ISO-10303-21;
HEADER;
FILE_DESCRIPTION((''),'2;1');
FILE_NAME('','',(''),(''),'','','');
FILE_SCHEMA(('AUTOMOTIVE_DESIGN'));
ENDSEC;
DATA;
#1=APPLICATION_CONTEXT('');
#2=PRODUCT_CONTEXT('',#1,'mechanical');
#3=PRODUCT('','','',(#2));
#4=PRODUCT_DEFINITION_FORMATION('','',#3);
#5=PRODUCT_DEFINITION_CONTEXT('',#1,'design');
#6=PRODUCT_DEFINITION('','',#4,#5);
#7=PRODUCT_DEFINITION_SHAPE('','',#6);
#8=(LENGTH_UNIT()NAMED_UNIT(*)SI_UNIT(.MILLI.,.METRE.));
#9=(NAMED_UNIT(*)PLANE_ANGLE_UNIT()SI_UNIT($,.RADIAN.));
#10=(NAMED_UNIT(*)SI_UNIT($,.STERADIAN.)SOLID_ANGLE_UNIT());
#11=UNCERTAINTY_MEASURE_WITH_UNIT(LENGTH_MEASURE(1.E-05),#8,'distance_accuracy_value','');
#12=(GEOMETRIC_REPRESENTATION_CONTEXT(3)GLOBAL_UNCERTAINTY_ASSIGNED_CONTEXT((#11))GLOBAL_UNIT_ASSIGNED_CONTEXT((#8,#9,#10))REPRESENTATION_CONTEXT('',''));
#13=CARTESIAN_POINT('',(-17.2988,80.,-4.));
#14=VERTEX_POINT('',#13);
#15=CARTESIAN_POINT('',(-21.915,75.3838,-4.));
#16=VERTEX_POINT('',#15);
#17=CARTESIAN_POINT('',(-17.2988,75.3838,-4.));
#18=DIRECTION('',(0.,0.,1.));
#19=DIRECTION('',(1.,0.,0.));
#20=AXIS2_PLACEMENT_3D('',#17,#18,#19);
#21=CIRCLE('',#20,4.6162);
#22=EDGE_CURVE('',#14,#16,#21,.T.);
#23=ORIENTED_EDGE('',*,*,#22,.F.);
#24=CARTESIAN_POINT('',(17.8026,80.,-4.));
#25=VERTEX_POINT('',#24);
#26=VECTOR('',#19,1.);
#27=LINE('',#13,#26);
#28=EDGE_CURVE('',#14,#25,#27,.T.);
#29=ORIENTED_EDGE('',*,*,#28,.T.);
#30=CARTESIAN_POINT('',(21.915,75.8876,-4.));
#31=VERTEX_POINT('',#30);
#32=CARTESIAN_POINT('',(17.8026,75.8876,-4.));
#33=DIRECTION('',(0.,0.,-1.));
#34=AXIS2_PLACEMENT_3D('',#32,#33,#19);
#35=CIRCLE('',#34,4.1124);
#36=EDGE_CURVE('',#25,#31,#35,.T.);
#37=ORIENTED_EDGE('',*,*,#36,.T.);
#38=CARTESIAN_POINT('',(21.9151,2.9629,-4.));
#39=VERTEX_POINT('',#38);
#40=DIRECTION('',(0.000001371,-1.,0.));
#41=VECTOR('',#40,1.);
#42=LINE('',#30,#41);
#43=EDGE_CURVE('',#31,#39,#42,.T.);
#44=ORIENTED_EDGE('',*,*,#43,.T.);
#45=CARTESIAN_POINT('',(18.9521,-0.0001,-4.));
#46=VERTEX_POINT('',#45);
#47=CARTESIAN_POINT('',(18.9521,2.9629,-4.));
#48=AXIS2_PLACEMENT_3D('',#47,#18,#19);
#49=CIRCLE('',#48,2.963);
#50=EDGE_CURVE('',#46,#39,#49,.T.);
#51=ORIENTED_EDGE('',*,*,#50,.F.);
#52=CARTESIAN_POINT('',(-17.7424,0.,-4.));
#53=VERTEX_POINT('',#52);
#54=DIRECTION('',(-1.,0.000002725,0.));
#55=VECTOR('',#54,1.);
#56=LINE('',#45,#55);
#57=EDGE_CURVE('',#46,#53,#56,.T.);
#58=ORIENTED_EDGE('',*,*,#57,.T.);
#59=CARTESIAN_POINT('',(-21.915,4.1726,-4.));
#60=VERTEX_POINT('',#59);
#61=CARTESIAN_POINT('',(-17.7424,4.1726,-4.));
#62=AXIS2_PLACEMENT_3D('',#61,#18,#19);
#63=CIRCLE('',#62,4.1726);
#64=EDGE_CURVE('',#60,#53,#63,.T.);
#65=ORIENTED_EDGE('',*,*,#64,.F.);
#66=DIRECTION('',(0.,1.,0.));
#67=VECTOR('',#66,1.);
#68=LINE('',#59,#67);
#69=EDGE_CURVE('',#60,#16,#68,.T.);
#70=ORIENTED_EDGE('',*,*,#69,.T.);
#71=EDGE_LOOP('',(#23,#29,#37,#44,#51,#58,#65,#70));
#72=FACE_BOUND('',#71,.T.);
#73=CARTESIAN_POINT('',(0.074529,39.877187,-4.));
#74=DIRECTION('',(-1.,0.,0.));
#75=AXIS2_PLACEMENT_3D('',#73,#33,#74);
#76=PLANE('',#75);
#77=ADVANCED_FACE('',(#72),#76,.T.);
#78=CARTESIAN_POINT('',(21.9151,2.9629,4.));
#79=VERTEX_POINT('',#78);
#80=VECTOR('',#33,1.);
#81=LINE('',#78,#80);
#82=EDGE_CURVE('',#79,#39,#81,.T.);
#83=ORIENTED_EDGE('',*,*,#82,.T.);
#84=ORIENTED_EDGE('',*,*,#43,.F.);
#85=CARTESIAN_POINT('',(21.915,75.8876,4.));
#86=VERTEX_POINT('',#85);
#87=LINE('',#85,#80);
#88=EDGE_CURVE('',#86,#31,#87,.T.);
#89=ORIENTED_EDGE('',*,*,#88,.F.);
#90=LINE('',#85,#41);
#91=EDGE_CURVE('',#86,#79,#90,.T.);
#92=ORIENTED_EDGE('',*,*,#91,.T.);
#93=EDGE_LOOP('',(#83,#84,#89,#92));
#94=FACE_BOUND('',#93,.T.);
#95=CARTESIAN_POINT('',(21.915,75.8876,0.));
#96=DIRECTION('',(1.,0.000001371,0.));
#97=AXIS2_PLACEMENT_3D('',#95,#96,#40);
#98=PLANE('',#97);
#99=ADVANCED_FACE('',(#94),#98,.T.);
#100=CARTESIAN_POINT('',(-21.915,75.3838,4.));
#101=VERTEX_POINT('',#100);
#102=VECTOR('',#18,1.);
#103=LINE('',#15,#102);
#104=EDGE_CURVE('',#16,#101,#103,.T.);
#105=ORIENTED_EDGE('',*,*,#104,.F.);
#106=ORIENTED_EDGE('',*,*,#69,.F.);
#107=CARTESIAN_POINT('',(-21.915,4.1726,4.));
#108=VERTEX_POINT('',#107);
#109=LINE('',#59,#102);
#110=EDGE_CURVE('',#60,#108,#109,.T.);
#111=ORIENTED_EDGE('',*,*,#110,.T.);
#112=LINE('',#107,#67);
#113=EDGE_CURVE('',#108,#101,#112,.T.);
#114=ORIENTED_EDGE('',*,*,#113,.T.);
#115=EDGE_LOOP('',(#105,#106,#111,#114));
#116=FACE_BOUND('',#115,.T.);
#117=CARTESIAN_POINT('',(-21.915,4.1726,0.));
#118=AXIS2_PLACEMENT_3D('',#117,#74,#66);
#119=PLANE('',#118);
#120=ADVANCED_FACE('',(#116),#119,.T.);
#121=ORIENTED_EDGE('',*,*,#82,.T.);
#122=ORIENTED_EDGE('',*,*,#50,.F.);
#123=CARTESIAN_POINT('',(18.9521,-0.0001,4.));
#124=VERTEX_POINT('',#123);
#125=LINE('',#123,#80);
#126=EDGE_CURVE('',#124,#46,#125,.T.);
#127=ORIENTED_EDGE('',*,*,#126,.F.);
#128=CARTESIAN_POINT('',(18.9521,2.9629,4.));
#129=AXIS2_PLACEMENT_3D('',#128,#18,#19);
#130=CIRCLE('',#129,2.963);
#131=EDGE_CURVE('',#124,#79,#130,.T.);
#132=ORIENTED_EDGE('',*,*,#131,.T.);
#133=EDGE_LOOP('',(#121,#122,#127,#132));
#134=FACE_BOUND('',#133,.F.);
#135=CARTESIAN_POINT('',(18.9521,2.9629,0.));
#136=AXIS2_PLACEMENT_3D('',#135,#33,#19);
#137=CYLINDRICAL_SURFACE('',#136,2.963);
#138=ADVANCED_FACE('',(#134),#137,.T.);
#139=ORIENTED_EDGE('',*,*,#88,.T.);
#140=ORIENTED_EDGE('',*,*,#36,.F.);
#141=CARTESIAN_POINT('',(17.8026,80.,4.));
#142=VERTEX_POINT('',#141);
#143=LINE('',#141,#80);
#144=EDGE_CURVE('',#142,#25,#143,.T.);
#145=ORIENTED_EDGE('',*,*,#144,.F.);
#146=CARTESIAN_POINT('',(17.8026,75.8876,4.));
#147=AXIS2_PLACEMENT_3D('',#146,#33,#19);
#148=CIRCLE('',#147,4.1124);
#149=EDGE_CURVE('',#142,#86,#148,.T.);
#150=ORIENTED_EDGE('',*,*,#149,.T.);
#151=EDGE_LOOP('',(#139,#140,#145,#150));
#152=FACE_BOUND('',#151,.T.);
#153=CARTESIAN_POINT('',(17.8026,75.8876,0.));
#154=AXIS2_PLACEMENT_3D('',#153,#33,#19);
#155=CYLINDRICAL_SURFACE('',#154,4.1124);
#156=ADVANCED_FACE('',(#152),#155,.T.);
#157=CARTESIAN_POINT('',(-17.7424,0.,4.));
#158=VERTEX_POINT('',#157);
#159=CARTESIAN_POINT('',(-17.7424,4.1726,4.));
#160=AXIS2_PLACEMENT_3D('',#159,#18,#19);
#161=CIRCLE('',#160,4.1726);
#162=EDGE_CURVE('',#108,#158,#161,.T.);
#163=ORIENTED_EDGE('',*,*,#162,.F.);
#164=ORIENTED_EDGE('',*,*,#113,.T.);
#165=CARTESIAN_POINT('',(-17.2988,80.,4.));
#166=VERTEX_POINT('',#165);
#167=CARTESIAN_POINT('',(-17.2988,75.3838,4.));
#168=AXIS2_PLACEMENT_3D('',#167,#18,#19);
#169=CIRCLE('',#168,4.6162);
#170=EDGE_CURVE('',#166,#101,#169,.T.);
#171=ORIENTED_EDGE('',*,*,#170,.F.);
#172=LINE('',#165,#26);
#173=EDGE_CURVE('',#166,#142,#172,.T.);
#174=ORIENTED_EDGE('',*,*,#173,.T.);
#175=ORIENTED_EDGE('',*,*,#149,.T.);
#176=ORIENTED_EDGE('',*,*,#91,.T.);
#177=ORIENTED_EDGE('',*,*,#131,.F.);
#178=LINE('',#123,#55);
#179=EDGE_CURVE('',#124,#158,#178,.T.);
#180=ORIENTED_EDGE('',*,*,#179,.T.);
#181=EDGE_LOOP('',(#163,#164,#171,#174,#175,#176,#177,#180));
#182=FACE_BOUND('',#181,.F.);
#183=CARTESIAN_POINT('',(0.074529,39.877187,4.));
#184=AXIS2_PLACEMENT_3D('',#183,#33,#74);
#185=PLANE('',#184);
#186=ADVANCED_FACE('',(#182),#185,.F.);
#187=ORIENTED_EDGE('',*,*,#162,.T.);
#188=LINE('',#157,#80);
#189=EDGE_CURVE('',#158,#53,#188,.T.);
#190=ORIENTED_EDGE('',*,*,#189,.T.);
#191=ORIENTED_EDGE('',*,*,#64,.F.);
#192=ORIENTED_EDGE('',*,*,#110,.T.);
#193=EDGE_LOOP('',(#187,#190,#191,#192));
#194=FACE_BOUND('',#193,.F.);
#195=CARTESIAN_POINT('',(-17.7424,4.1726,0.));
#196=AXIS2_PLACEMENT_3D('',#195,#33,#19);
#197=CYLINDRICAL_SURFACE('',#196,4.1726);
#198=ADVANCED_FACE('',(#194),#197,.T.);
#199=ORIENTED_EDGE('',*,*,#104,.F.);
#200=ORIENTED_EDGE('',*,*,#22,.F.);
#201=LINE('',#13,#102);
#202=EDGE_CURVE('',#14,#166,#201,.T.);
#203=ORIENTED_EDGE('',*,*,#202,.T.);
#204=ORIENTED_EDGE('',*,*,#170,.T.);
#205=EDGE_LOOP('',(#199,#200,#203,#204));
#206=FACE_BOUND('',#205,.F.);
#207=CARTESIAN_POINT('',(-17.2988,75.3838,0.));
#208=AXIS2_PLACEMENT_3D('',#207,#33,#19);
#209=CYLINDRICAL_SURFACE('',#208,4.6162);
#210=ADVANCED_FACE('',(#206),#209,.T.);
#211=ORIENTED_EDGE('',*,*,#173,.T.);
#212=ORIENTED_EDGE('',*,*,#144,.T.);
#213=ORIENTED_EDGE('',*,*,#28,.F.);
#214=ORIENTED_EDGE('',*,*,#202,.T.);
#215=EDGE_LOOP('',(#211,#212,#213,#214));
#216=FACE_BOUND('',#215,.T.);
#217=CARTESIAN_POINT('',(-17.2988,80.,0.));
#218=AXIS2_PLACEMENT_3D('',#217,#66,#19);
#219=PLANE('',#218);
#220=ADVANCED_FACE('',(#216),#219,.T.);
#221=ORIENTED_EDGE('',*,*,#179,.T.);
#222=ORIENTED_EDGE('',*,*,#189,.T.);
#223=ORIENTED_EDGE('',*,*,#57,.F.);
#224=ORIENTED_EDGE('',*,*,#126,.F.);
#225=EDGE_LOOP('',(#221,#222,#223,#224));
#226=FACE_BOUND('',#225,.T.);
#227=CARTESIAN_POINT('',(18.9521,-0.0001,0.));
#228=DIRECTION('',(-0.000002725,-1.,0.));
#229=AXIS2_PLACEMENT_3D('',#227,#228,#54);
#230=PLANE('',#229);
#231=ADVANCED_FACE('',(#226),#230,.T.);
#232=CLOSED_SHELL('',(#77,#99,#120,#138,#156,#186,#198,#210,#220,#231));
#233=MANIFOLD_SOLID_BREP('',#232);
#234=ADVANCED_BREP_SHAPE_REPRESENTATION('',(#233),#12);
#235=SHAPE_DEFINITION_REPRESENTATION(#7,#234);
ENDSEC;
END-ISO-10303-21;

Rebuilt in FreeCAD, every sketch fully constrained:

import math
import FreeCAD as App
import Part
import Sketcher

doc = App.newDocument("Part")
params = doc.addObject("Spreadsheet::Sheet", "Params")
for row, (alias, value) in enumerate([
    ("pad1_length", "8 mm"),
], start=1):
    params.set(f"A{row}", alias)
    params.set(f"B{row}", "=" + value)
    params.setAlias(f"B{row}", alias)

body = doc.addObject("PartDesign::Body", "Body")

# Sketch on XY plane
sketch1 = body.newObject("Sketcher::SketchObject", "Sketch")
sketch1.AttachmentSupport = (doc.getObject("XY_Plane"), [""])
sketch1.MapMode = "FlatFace"
sketch1.addGeometry(Part.LineSegment(App.Vector(17.8, 80, 0), App.Vector(-17.3, 80, 0)), False)
sketch1.addGeometry(Part.ArcOfCircle(Part.Circle(App.Vector(-17.3, 75.4, 0), App.Vector(0, 0, 1), 4.6), math.radians(90), math.radians(180)), False)
sketch1.addGeometry(Part.LineSegment(App.Vector(-21.9, 75.4, 0), App.Vector(-21.9, 4.2, 0)), False)
sketch1.addGeometry(Part.ArcOfCircle(Part.Circle(App.Vector(-17.7, 4.2, 0), App.Vector(0, 0, 1), 4.2), math.radians(180), math.radians(270)), False)
sketch1.addGeometry(Part.LineSegment(App.Vector(-17.7, 0, 0), App.Vector(19, 0, 0)), False)
sketch1.addGeometry(Part.ArcOfCircle(Part.Circle(App.Vector(19, 3, 0), App.Vector(0, 0, 1), 3), math.radians(-90), math.radians(0)), False)
sketch1.addGeometry(Part.LineSegment(App.Vector(21.9, 3, 0), App.Vector(21.9, 75.9, 0)), False)
sketch1.addGeometry(Part.ArcOfCircle(Part.Circle(App.Vector(17.8, 75.9, 0), App.Vector(0, 0, 1), 4.1), math.radians(0), math.radians(90)), False)
sketch1.addConstraint(Sketcher.Constraint("Tangent", 0, 2, 1, 1))
sketch1.addConstraint(Sketcher.Constraint("Tangent", 1, 2, 2, 1))
sketch1.addConstraint(Sketcher.Constraint("Tangent", 2, 2, 3, 1))
sketch1.addConstraint(Sketcher.Constraint("Tangent", 3, 2, 4, 1))
sketch1.addConstraint(Sketcher.Constraint("Tangent", 4, 2, 5, 1))
sketch1.addConstraint(Sketcher.Constraint("Tangent", 5, 2, 6, 1))
sketch1.addConstraint(Sketcher.Constraint("Tangent", 6, 2, 7, 1))
sketch1.addConstraint(Sketcher.Constraint("Tangent", 7, 2, 0, 1))
sketch1.addConstraint(Sketcher.Constraint("Horizontal", 0))
sketch1.addConstraint(Sketcher.Constraint("Vertical", 2))
sketch1.addConstraint(Sketcher.Constraint("Horizontal", 4))
sketch1.addConstraint(Sketcher.Constraint("Vertical", 6))
sketch1.addConstraint(Sketcher.Constraint("PointOnObject", 3, 2, -1))
sketch1.addConstraint(Sketcher.Constraint("DistanceY", -1, 1, 0, 2, 80.0))
sketch1.addConstraint(Sketcher.Constraint("Radius", 5, 2.963))
sketch1.addConstraint(Sketcher.Constraint("Radius", 1, 4.6162))
sketch1.addConstraint(Sketcher.Constraint("Radius", 3, 4.1726))
sketch1.addConstraint(Sketcher.Constraint("Radius", 7, 4.1124))
sketch1.addConstraint(Sketcher.Constraint("DistanceX", 2, 2, 5, 2, 43.83))
sketch1.addConstraint(Sketcher.Constraint("DistanceX", -1, 1, 5, 3, 18.952))
pad1 = body.newObject("PartDesign::Pad", "Pad")
pad1.Profile = sketch1
pad1.setExpression("Length", "Params.pad1_length")
pad1.Midplane = True

doc.recompute()
